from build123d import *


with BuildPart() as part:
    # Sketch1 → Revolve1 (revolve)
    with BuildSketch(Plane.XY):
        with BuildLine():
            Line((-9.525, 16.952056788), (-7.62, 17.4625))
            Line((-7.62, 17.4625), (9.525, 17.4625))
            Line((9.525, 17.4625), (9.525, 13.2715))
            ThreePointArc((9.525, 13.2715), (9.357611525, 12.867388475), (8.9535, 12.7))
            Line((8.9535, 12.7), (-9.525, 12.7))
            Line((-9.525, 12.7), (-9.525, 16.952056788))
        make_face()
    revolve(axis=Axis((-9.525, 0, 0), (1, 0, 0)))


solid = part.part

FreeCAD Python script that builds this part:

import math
import FreeCAD as App
import Part
import Sketcher
Q = App.Units.Quantity

doc = App.newDocument("Part")
params = doc.addObject("Spreadsheet::Sheet", "Params")
for row, (alias, value) in enumerate([
    ("sketch1_width", "0.675 in"),
    ("sketch1_height", "0.165 in"),
    ("revolution_angle", "360 deg"),
], start=1):
    params.set(f"A{row}", alias)
    params.set(f"B{row}", "=" + value)
    params.setAlias(f"B{row}", alias)

body = doc.addObject("PartDesign::Body", "Body")

# Sketch on XY plane
sketch1 = body.newObject("Sketcher::SketchObject", "Sketch")
sketch1.AttachmentSupport = (doc.getObject("XY_Plane"), [""])
sketch1.MapMode = "FlatFace"
sketch1.addGeometry([
    Part.LineSegment(App.Vector(-7.6, 17.5, 0), App.Vector(-9.5, 17, 0)),  # 0
    Part.LineSegment(App.Vector(-9.5, 17, 0), App.Vector(-9.5, 12.7, 0)),  # 1
    Part.LineSegment(App.Vector(-9.5, 12.7, 0), App.Vector(9, 12.7, 0)),  # 2
    Part.ArcOfCircle(Part.Circle(App.Vector(9, 13.3, 0), App.Vector(0, 0, 1), 0.6), math.radians(-90), math.radians(0)),  # 3
    Part.LineSegment(App.Vector(9.5, 13.3, 0), App.Vector(9.5, 17.5, 0)),  # 4
    Part.LineSegment(App.Vector(9.5, 17.5, 0), App.Vector(-7.6, 17.5, 0)),  # 5
], False)
sketch1.addConstraint([
    Sketcher.Constraint("Coincident", 0, 2, 1, 1),
    Sketcher.Constraint("Coincident", 1, 2, 2, 1),
    Sketcher.Constraint("Tangent", 2, 2, 3, 1),
    Sketcher.Constraint("Tangent", 3, 2, 4, 1),
    Sketcher.Constraint("Coincident", 4, 2, 5, 1),
    Sketcher.Constraint("Coincident", 5, 2, 0, 1),
    Sketcher.Constraint("Vertical", 1),
    Sketcher.Constraint("Horizontal", 2),
    Sketcher.Constraint("Vertical", 4),
    Sketcher.Constraint("Horizontal", 5),
    Sketcher.Constraint("Angle", 0, Q("-165 deg")),
    Sketcher.Constraint("DistanceY", -1, 1, 1, 2, Q("0.5 in")),
    Sketcher.Constraint("DistanceX", 5, 2, -1, 1, Q("0.3 in")),
    Sketcher.Constraint("Radius", 3, Q("0.0225 in")),
    Sketcher.Constraint("DistanceX", 5, 2, 5, 1, Q("0.675 in")),
    Sketcher.Constraint("DistanceY", 4, 1, 4, 2, Q("0.165 in")),
    Sketcher.Constraint("DistanceX", 1, 2, 3, 2, Q("0.75 in")),
])
sketch1.setExpression("Constraints[14]", "Params.sketch1_width")
sketch1.setExpression("Constraints[15]", "Params.sketch1_height")
revolution = body.newObject("PartDesign::Revolution", "Revolution")
revolution.Profile = sketch1
revolution.ReferenceAxis = (sketch1, ["H_Axis"])
revolution.setExpression("Angle", "Params.revolution_angle")

doc.recompute()
